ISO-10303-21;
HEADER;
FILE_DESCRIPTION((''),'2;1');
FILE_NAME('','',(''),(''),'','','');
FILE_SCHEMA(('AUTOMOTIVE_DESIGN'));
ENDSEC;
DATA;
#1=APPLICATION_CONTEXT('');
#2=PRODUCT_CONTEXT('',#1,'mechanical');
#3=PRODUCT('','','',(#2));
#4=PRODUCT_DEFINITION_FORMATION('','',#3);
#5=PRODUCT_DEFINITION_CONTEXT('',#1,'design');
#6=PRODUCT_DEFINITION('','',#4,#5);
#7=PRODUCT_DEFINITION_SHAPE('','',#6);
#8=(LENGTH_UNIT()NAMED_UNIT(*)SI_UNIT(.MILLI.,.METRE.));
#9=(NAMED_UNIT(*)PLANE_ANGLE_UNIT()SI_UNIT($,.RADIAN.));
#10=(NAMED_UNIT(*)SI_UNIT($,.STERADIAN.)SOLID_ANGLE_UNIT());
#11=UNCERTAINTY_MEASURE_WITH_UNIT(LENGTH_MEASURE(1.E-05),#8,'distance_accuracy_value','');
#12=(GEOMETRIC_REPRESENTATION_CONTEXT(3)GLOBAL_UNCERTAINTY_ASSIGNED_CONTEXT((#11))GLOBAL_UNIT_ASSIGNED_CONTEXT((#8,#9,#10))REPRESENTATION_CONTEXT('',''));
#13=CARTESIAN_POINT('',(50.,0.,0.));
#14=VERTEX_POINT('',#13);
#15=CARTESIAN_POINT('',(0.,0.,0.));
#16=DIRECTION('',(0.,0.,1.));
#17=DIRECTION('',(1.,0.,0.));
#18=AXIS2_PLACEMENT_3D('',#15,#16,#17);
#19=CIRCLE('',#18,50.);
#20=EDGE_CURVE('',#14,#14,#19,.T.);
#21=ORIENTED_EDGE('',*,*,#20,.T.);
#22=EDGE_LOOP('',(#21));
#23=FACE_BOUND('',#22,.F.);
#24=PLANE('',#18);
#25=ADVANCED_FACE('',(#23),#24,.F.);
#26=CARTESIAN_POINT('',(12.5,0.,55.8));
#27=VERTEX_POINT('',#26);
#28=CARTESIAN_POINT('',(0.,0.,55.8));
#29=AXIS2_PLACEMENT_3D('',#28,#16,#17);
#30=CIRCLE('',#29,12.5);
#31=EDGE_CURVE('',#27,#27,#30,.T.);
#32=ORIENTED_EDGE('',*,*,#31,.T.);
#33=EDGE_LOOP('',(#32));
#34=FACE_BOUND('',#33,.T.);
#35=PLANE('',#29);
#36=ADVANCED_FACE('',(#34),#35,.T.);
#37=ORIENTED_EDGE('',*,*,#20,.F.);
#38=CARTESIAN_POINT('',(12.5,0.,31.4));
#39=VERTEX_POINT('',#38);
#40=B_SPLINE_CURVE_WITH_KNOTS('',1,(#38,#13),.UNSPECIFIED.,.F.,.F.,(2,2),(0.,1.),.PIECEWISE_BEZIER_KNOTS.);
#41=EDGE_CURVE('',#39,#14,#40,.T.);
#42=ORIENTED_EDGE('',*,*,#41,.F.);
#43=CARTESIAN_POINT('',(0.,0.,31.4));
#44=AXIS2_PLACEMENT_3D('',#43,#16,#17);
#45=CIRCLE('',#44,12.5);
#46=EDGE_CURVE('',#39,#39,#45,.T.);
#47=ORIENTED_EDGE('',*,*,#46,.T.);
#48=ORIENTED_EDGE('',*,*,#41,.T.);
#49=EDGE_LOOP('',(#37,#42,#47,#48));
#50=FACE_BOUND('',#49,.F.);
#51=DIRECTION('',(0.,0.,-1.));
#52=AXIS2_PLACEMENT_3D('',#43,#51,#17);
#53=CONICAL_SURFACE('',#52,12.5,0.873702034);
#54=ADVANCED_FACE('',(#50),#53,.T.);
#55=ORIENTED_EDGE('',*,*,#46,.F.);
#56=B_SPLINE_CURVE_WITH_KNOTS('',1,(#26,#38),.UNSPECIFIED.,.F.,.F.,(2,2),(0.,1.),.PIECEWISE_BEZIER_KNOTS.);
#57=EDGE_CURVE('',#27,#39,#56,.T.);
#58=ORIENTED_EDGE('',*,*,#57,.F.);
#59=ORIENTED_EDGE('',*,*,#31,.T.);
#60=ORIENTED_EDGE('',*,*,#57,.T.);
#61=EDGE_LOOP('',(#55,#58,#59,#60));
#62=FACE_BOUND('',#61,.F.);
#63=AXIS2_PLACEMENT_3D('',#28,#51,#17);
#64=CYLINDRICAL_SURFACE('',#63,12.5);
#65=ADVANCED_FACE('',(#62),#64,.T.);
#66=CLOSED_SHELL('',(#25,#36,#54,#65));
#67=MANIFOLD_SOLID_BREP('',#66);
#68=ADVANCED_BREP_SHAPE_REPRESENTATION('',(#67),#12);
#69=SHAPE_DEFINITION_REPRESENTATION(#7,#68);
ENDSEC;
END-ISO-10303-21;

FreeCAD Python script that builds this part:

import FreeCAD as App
import Part
import Sketcher
from FreeCAD import Vector
Q = App.Units.Quantity

doc = App.newDocument("Part")
params = doc.addObject("Spreadsheet::Sheet", "Params")
for row, (alias, value) in enumerate([
    ("sketch1_diameter", "25 mm"),
    ("sketch2_diameter", "100 mm"),
    ("sketch3_diameter", "25 mm"),
    ("sketch4_diameter", "25 mm"),
], start=1):
    params.set(f"A{row}", alias)
    params.set(f"B{row}", "=" + value)
    params.setAlias(f"B{row}", alias)

body = doc.addObject("PartDesign::Body", "Body")

# Sketch on XY plane
sketch1 = doc.addObject("Sketcher::SketchObject", "Sketch")
body.addObject(sketch1)
sketch1.AttachmentSupport = (doc.XY_Plane, [""])
sketch1.MapMode = "FlatFace"
sketch1.AttachmentOffset = App.Placement(Vector(0, 0, 31.4), App.Rotation())
sketch1.addGeometry(Part.Circle(Vector(0, 0, 0), Vector(0, 0, 1), 12), False)
sketch1.addConstraint(Sketcher.Constraint("Coincident", 0, 3, -1, 1))
sketch1.addConstraint(Sketcher.Constraint("Diameter", 0, Q("25 mm")))
sketch1.setExpression("Constraints[1]", "Params.sketch1_diameter")

# Sketch on XY plane
sketch2 = doc.addObject("Sketcher::SketchObject", "Sketch001")
body.addObject(sketch2)
sketch2.AttachmentSupport = (doc.XY_Plane, [""])
sketch2.MapMode = "FlatFace"
sketch2.addGeometry(Part.Circle(Vector(0, 0, 0), Vector(0, 0, 1), 50), False)
sketch2.addConstraint(Sketcher.Constraint("Coincident", 0, 3, -1, 1))
sketch2.addConstraint(Sketcher.Constraint("Diameter", 0, Q("100 mm")))
sketch2.setExpression("Constraints[1]", "Params.sketch2_diameter")

additiveloft = doc.addObject("PartDesign::AdditiveLoft", "AdditiveLoft")
body.addObject(additiveloft)
additiveloft.Profile = sketch1
additiveloft.Sections = [sketch2]

# Sketch on XY plane
sketch3 = doc.addObject("Sketcher::SketchObject", "Sketch002")
body.addObject(sketch3)
sketch3.AttachmentSupport = (doc.XY_Plane, [""])
sketch3.MapMode = "FlatFace"
sketch3.AttachmentOffset = App.Placement(Vector(0, 0, 55.8), App.Rotation())
sketch3.addGeometry(Part.Circle(Vector(0, 0, 0), Vector(0, 0, 1), 12), False)
sketch3.addConstraint(Sketcher.Constraint("Coincident", 0, 3, -1, 1))
sketch3.addConstraint(Sketcher.Constraint("Diameter", 0, Q("25 mm")))
sketch3.setExpression("Constraints[1]", "Params.sketch3_diameter")

# Sketch on XY plane
sketch4 = doc.addObject("Sketcher::SketchObject", "Sketch003")
body.addObject(sketch4)
sketch4.AttachmentSupport = (doc.XY_Plane, [""])
sketch4.MapMode = "FlatFace"
sketch4.AttachmentOffset = App.Placement(Vector(0, 0, 31.4), App.Rotation())
sketch4.addGeometry(Part.Circle(Vector(0, 0, 0), Vector(0, 0, 1), 12), False)
sketch4.addConstraint(Sketcher.Constraint("Coincident", 0, 3, -1, 1))
sketch4.addConstraint(Sketcher.Constraint("Diameter", 0, Q("25 mm")))
sketch4.setExpression("Constraints[1]", "Params.sketch4_diameter")

additiveloft2 = doc.addObject("PartDesign::AdditiveLoft", "AdditiveLoft001")
body.addObject(additiveloft2)
additiveloft2.Profile = sketch3
additiveloft2.Sections = [sketch4]

doc.recompute()
